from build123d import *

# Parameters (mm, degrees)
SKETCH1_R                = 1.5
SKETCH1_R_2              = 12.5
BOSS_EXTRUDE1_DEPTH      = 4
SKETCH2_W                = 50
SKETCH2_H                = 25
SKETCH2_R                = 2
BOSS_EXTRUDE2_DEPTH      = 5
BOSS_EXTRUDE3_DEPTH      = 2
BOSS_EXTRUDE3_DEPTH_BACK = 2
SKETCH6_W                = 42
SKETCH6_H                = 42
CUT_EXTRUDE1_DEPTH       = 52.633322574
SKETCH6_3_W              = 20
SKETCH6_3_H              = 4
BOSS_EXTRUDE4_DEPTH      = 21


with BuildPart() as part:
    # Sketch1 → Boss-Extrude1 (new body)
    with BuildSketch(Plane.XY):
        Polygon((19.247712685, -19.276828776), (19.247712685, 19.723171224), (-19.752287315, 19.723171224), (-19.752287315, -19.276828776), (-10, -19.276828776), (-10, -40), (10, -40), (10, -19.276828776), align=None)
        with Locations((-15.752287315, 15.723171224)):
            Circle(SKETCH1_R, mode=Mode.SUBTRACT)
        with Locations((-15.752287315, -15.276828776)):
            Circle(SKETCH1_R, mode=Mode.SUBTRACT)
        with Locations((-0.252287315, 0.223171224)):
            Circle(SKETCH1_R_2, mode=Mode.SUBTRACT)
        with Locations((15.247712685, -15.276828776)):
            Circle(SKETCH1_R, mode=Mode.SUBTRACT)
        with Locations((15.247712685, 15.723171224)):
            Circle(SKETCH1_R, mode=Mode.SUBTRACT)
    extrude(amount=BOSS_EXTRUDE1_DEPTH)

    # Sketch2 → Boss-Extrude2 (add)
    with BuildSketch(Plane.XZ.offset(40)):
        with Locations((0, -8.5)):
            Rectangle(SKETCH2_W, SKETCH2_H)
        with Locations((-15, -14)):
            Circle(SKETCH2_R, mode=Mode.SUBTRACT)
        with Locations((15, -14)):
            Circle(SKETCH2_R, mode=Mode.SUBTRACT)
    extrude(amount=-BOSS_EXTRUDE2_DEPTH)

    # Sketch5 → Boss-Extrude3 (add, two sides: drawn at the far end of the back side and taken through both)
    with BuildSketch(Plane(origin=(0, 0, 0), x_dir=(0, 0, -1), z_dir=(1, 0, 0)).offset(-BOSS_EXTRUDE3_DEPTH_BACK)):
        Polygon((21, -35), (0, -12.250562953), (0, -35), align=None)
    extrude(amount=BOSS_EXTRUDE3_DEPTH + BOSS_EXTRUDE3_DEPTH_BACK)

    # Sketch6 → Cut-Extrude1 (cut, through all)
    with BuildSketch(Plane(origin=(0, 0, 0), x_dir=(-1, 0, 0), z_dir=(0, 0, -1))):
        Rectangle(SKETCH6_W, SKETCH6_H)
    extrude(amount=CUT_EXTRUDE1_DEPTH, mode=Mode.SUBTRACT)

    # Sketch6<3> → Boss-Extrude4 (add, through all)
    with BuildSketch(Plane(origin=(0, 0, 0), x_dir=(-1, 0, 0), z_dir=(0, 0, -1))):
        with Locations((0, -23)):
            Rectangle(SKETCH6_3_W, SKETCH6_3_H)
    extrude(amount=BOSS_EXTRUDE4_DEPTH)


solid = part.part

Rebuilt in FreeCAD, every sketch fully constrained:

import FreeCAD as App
import Part
import Sketcher

V = App.Vector

doc = App.newDocument("Part")
body = doc.addObject("PartDesign::Body", "Body")

sketch1 = doc.addObject("Sketcher::SketchObject", "Sketch")
body.addObject(sketch1)
sketch1.AttachmentSupport = (doc.XY_Plane, [""])
sketch1.MapMode = "FlatFace"
sketch1.addGeometry([
    Part.LineSegment(V(19.2, -19.3, 0), V(19.2, 19.7, 0)),
    Part.LineSegment(V(19.2, 19.7, 0), V(-19.8, 19.7, 0)),
    Part.LineSegment(V(-19.8, 19.7, 0), V(-19.8, -19.3, 0)),
    Part.LineSegment(V(-19.8, -19.3, 0), V(-10, -19.3, 0)),
    Part.LineSegment(V(-10, -19.3, 0), V(-10, -40, 0)),
    Part.LineSegment(V(-10, -40, 0), V(10, -40, 0)),
    Part.LineSegment(V(10, -40, 0), V(10, -19.3, 0)),
    Part.LineSegment(V(10, -19.3, 0), V(19.2, -19.3, 0)),
    Part.Circle(V(-15.8, -15.3, 0), V(0, 0, 1), 1.5),
    Part.Circle(V(15.2, -15.3, 0), V(0, 0, 1), 1.5),
    Part.Circle(V(-15.8, 15.7, 0), V(0, 0, 1), 1.5),
    Part.Circle(V(-0.3, 0.2, 0), V(0, 0, 1), 12.5),
    Part.Circle(V(15.2, 15.7, 0), V(0, 0, 1), 1.5),
], False)
sketch1.addConstraint([
    Sketcher.Constraint("Coincident", 0, 2, 1, 1),
    Sketcher.Constraint("Coincident", 1, 2, 2, 1),
    Sketcher.Constraint("Coincident", 2, 2, 3, 1),
    Sketcher.Constraint("Coincident", 3, 2, 4, 1),
    Sketcher.Constraint("Coincident", 4, 2, 5, 1),
    Sketcher.Constraint("Coincident", 5, 2, 6, 1),
    Sketcher.Constraint("Coincident", 6, 2, 7, 1),
    Sketcher.Constraint("Coincident", 7, 2, 0, 1),
    Sketcher.Constraint("Vertical", 0),
    Sketcher.Constraint("Horizontal", 1),
    Sketcher.Constraint("Vertical", 2),
    Sketcher.Constraint("Horizontal", 3),
    Sketcher.Constraint("Vertical", 4),
    Sketcher.Constraint("Horizontal", 5),
    Sketcher.Constraint("Vertical", 6),
    Sketcher.Constraint("Horizontal", 7),
    Sketcher.Constraint("Equal", 8, 9),
    Sketcher.Constraint("Equal", 9, 10),
    Sketcher.Constraint("Equal", 10, 12),
    Sketcher.Constraint("Symmetric", 3, 2, 6, 2, -2),
    Sketcher.Constraint("Horizontal", 8, 3, 9, 3),
    Sketcher.Constraint("Horizontal", 10, 3, 12, 3),
    Sketcher.Constraint("Vertical", 8, 3, 10, 3),
    Sketcher.Constraint("Vertical", 9, 3, 12, 3),
    Sketcher.Constraint("Equal", 1, 0),
    Sketcher.Constraint("Diameter", 8, 3.0),
    Sketcher.Constraint("Diameter", 11, 25.0),
    Sketcher.Constraint("DistanceX", 1, 2, 1, 1, 39.0),
    Sketcher.Constraint("DistanceX", 5, 1, 5, 2, 20.0),
    Sketcher.Constraint("DistanceY", 4, 2, -1, 1, 40.0),
    Sketcher.Constraint("DistanceX", 8, 3, 9, 3, 31.0),
    Sketcher.Constraint("DistanceY", 8, 3, 10, 3, 31.0),
    Sketcher.Constraint("DistanceX", 12, 3, 0, 2, 4.0),
    Sketcher.Constraint("DistanceY", 12, 3, 0, 2, 4.0),
    Sketcher.Constraint("DistanceX", 8, 3, 11, 3, 15.5),
    Sketcher.Constraint("DistanceY", 8, 3, 11, 3, 15.5),
    Sketcher.Constraint("DistanceY", 4, 2, 4, 1, 20.723171),
    Sketcher.Constraint("DistanceX", 3, 1, 3, 2, 9.752287),
])
pad1 = doc.addObject("PartDesign::Pad", "Pad")
body.addObject(pad1)
pad1.Profile = sketch1
pad1.Length = 4

sketch2 = doc.addObject("Sketcher::SketchObject", "Sketch001")
body.addObject(sketch2)
sketch2.AttachmentSupport = (doc.XZ_Plane, [""])
sketch2.MapMode = "FlatFace"
sketch2.AttachmentOffset = App.Placement(V(0, 0, 40), App.Rotation())
sketch2.addGeometry([
    Part.LineSegment(V(-25, 4, 0), V(-25, -21, 0)),
    Part.LineSegment(V(-25, -21, 0), V(25, -21, 0)),
    Part.LineSegment(V(25, -21, 0), V(25, 4, 0)),
    Part.LineSegment(V(25, 4, 0), V(-25, 4, 0)),
    Part.Circle(V(-15, -14, 0), V(0, 0, 1), 2),
    Part.Circle(V(15, -14, 0), V(0, 0, 1), 2),
], False)
sketch2.addConstraint([
    Sketcher.Constraint("Coincident", 0, 2, 1, 1),
    Sketcher.Constraint("Coincident", 1, 2, 2, 1),
    Sketcher.Constraint("Coincident", 2, 2, 3, 1),
    Sketcher.Constraint("Coincident", 3, 2, 0, 1),
    Sketcher.Constraint("Vertical", 0),
    Sketcher.Constraint("Horizontal", 1),
    Sketcher.Constraint("Vertical", 2),
    Sketcher.Constraint("Horizontal", 3),
    Sketcher.Constraint("Equal", 4, 5),
    Sketcher.Constraint("Symmetric", 4, 3, 5, 3, -2),
    Sketcher.Constraint("Diameter", 4, 4.0),
    Sketcher.Constraint("DistanceX", 1, 1, 1, 2, 50.0),
    Sketcher.Constraint("DistanceY", 0, 2, 0, 1, 25.0),
    Sketcher.Constraint("DistanceX", 4, 3, -1, 1, 15.0),
    Sketcher.Constraint("DistanceY", 4, 3, -1, 1, 14.0),
    Sketcher.Constraint("DistanceX", 0, 2, -1, 1, 25.0),
    Sketcher.Constraint("DistanceY", 0, 2, -1, 1, 21.0),
])
pad2 = doc.addObject("PartDesign::Pad", "Pad001")
body.addObject(pad2)
pad2.Profile = sketch2
pad2.Length = 5
pad2.Reversed = True

sketch3 = doc.addObject("Sketcher::SketchObject", "Sketch002")
body.addObject(sketch3)
sketch3.AttachmentSupport = (doc.YZ_Plane, [""])
sketch3.MapMode = "FlatFace"
sketch3.addGeometry([
    Part.LineSegment(V(-35, -21, 0), V(-12, 0, 0)),
    Part.LineSegment(V(-12, 0, 0), V(-35, 0, 0)),
    Part.LineSegment(V(-35, 0, 0), V(-35, -21, 0)),
], False)
sketch3.addConstraint([
    Sketcher.Constraint("Coincident", 0, 2, 1, 1),
    Sketcher.Constraint("Coincident", 1, 2, 2, 1),
    Sketcher.Constraint("Coincident", 2, 2, 0, 1),
    Sketcher.Constraint("Horizontal", 1),
    Sketcher.Constraint("Vertical", 2),
    Sketcher.Constraint("PointOnObject", 0, 2, -1),
    Sketcher.Constraint("DistanceY", 2, 2, 2, 1, 21.0),
    Sketcher.Constraint("DistanceX", 1, 2, -1, 1, 35.0),
    Sketcher.Constraint("DistanceX", 1, 2, 1, 1, 22.749437),
])
pad3 = doc.addObject("PartDesign::Pad", "Pad002")
body.addObject(pad3)
pad3.Profile = sketch3
pad3.Type = "TwoLengths"
pad3.Length = 2
pad3.Length2 = 2

sketch4 = doc.addObject("Sketcher::SketchObject", "Sketch003")
body.addObject(sketch4)
sketch4.AttachmentSupport = (doc.XY_Plane, [""])
sketch4.MapMode = "FlatFace"
sketch4.addGeometry([
    Part.LineSegment(V(21, 21, 0), V(21, -21, 0)),
    Part.LineSegment(V(21, -21, 0), V(-21, -21, 0)),
    Part.LineSegment(V(-21, -21, 0), V(-21, 21, 0)),
    Part.LineSegment(V(-21, 21, 0), V(21, 21, 0)),
], False)
sketch4.addConstraint([
    Sketcher.Constraint("Coincident", 0, 2, 1, 1),
    Sketcher.Constraint("Coincident", 1, 2, 2, 1),
    Sketcher.Constraint("Coincident", 2, 2, 3, 1),
    Sketcher.Constraint("Coincident", 3, 2, 0, 1),
    Sketcher.Constraint("Vertical", 0),
    Sketcher.Constraint("Horizontal", 1),
    Sketcher.Constraint("Vertical", 2),
    Sketcher.Constraint("Horizontal", 3),
    Sketcher.Constraint("Symmetric", 0, 2, 2, 2, -1, 1),
    Sketcher.Constraint("Equal", 3, 0),
    Sketcher.Constraint("DistanceX", 1, 2, 1, 1, 42.0),
])
pocket1 = doc.addObject("PartDesign::Pocket", "Pocket")
body.addObject(pocket1)
pocket1.Profile = sketch4
pocket1.Type = "ThroughAll"

sketch5 = doc.addObject("Sketcher::SketchObject", "Sketch004")
body.addObject(sketch5)
sketch5.AttachmentSupport = (doc.XY_Plane, [""])
sketch5.MapMode = "FlatFace"
sketch5.addGeometry([
    Part.LineSegment(V(10, -21, 0), V(10, -25, 0)),
    Part.LineSegment(V(10, -25, 0), V(-10, -25, 0)),
    Part.LineSegment(V(-10, -25, 0), V(-10, -21, 0)),
    Part.LineSegment(V(-10, -21, 0), V(10, -21, 0)),
], False)
sketch5.addConstraint([
    Sketcher.Constraint("Coincident", 0, 2, 1, 1),
    Sketcher.Constraint("Coincident", 1, 2, 2, 1),
    Sketcher.Constraint("Coincident", 2, 2, 3, 1),
    Sketcher.Constraint("Coincident", 3, 2, 0, 1),
    Sketcher.Constraint("Vertical", 0),
    Sketcher.Constraint("Horizontal", 1),
    Sketcher.Constraint("Vertical", 2),
    Sketcher.Constraint("Horizontal", 3),
    Sketcher.Constraint("DistanceX", 1, 2, 1, 1, 20.0),
    Sketcher.Constraint("DistanceY", 0, 2, 0, 1, 4.0),
    Sketcher.Constraint("DistanceX", -1, 1, 0, 2, 10.0),
    Sketcher.Constraint("DistanceY", 0, 2, -1, 1, 25.0),
])
pad4 = doc.addObject("PartDesign::Pad", "Pad003")
body.addObject(pad4)
pad4.Profile = sketch5
pad4.Length = 21
pad4.Reversed = True

doc.recompute()
